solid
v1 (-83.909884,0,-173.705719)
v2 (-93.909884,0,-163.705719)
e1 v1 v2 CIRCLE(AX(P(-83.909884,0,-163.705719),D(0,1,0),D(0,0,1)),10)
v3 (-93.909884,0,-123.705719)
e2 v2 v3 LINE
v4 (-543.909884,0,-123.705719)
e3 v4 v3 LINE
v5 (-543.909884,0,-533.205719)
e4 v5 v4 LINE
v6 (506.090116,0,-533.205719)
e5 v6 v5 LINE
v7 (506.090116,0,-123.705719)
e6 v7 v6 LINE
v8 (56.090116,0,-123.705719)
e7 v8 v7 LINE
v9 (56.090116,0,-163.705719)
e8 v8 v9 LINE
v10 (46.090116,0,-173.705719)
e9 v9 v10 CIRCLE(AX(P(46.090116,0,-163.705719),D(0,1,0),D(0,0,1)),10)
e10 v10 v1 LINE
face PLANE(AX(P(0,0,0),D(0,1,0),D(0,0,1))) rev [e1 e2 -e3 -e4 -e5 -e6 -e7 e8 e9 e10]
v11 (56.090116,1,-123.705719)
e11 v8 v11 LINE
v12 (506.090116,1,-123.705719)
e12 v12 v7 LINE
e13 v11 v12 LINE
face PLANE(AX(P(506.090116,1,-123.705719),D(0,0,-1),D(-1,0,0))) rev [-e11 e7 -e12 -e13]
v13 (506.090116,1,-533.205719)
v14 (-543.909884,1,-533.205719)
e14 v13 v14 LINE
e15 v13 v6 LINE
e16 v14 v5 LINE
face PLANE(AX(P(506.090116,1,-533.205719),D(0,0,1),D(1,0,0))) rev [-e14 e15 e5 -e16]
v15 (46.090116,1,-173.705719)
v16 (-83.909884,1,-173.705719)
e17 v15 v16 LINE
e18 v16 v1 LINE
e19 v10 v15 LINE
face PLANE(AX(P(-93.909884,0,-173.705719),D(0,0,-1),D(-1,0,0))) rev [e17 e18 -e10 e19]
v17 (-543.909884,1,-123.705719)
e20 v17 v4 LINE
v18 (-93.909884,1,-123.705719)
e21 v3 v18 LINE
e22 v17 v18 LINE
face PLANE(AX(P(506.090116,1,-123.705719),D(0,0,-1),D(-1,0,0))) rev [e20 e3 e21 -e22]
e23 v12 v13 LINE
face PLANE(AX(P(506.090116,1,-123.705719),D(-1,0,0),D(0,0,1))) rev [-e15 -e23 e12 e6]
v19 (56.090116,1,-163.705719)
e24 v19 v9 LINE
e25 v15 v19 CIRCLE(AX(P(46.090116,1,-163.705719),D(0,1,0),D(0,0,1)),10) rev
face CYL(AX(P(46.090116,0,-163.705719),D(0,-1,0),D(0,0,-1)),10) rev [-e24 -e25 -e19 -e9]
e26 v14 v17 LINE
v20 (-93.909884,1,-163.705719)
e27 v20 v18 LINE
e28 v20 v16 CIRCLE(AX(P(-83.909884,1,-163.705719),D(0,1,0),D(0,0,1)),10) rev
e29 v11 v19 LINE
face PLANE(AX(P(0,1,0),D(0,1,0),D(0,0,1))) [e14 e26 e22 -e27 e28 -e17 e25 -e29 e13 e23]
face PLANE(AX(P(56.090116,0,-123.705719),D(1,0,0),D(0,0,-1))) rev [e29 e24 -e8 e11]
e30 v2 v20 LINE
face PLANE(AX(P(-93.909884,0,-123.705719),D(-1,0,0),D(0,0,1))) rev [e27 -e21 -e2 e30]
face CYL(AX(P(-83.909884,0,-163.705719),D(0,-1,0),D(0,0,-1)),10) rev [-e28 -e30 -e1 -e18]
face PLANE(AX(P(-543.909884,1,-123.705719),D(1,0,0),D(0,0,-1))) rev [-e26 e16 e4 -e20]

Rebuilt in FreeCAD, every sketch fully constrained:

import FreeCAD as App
import Part
import Sketcher

V = App.Vector
Q = App.Units.Quantity


def edges_at(feature, points):
    """Names of the edges that pass closest to the given points."""
    edges = feature.Shape.Edges
    near = lambda p: min(range(len(edges)), key=lambda i: edges[i].distToShape(Part.Vertex(*p))[0])
    return sorted({f"Edge{near(p) + 1}" for p in points})


def add_polygon(sketch, points):
    """Adds a closed chain of lines whose ends are joined by coincident constraints."""
    first, n = sketch.GeometryCount, len(points)
    for a, b in zip(points, points[1:] + points[:1]):
        sketch.addGeometry(Part.LineSegment(App.Vector(*a, 0), App.Vector(*b, 0)), False)
    for i in range(n):
        sketch.addConstraint(Sketcher.Constraint("Coincident", first + i, 2, first + (i + 1) % n, 1))

doc = App.newDocument("Part")
body = doc.addObject("PartDesign::Body", "Body")

# Sketch on XZ plane
sketch1 = doc.addObject("Sketcher::SketchObject", "Sketch")
body.addObject(sketch1)
sketch1.AttachmentSupport = (doc.XZ_Plane, [""])
sketch1.MapMode = "FlatFace"
add_polygon(sketch1, [(-543.909884, -533.205719), (-543.909884, -123.705719), (506.090116, -123.705719), (506.090116, -533.205719)])  # lines 0-3
sketch1.addConstraint([
    Sketcher.Constraint("Vertical", 0),
    Sketcher.Constraint("Horizontal", 1),
    Sketcher.Constraint("Vertical", 2),
    Sketcher.Constraint("Horizontal", 3),
    Sketcher.Constraint("DistanceX", 1, 1, 1, 2, Q("1050 mm")),
    Sketcher.Constraint("DistanceY", 0, 1, 0, 2, Q("409.5 mm")),
    Sketcher.Constraint("DistanceY", 0, 2, -1, 1, Q("123.705719 mm")),
    Sketcher.Constraint("DistanceX", 0, 2, -1, 1, Q("543.909884 mm")),
])
pad1 = doc.addObject("PartDesign::Pad", "Pad")
body.addObject(pad1)
pad1.Profile = sketch1
pad1.Length = 1
pad1.Reversed = True

# Sketch on XZ plane
sketch2 = doc.addObject("Sketcher::SketchObject", "Sketch001")
body.addObject(sketch2)
sketch2.AttachmentSupport = (doc.XZ_Plane, [""])
sketch2.MapMode = "FlatFace"
sketch2.AttachmentOffset = App.Placement(V(0, 0, -1), App.Rotation())
add_polygon(sketch2, [(-93.909884, -173.705719), (-93.909884, -123.705719), (56.090116, -123.705719), (56.090116, -173.705719)])  # lines 0-3
sketch2.addConstraint([
    Sketcher.Constraint("Vertical", 0),
    Sketcher.Constraint("Horizontal", 1),
    Sketcher.Constraint("Vertical", 2),
    Sketcher.Constraint("Horizontal", 3),
    Sketcher.Constraint("DistanceX", 1, 1, 1, 2, Q("150 mm")),
    Sketcher.Constraint("DistanceY", 0, 1, 0, 2, Q("50 mm")),
    Sketcher.Constraint("DistanceY", 0, 2, -1, 1, Q("123.705719 mm")),
    Sketcher.Constraint("DistanceX", 0, 2, -1, 1, Q("93.909884 mm")),
])
pocket1 = doc.addObject("PartDesign::Pocket", "Pocket")
body.addObject(pocket1)
pocket1.Profile = sketch2
pocket1.Length = 1
pocket1.Reversed = True
doc.recompute()

fillet = doc.addObject("PartDesign::Fillet", "Fillet")
body.addObject(fillet)
fillet.Base = (pocket1, edges_at(pocket1, [(-93.91, 0.5, -173.706), (56.09, 0.5, -173.706)]))
fillet.Radius = 10

doc.recompute()
